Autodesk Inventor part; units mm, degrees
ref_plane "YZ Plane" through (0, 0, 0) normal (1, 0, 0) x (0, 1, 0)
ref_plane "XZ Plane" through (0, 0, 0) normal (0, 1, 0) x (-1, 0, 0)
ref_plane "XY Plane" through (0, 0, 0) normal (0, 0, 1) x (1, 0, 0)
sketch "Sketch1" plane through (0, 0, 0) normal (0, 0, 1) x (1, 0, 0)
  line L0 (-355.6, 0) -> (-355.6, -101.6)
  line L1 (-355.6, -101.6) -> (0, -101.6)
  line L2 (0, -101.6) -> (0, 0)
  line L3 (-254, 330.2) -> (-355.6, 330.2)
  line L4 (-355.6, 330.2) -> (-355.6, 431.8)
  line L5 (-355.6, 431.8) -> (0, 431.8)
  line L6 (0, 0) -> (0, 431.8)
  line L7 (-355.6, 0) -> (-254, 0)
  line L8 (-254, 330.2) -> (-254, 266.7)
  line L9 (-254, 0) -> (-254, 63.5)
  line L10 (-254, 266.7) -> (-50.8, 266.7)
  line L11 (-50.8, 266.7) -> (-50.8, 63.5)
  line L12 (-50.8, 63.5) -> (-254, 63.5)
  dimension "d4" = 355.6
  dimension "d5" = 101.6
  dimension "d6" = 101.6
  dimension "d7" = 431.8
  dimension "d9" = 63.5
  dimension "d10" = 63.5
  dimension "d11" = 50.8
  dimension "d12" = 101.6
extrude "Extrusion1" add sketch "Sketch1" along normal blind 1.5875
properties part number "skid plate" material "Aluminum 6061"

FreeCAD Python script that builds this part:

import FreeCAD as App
import Part
import Sketcher
from FreeCAD import Vector
Q = App.Units.Quantity

doc = App.newDocument("Part")
params = doc.addObject("Spreadsheet::Sheet", "Params")
for row, (alias, value) in enumerate([
    ("sketch1_width", "4 in"),
    ("sketch1_width2", "14 in"),
    ("sketch1_height", "2.5 in"),
    ("pad1_length", "0.0625 in"),
], start=1):
    params.set(f"A{row}", alias)
    params.set(f"B{row}", "=" + value)
    params.setAlias(f"B{row}", alias)

body = doc.addObject("PartDesign::Body", "Body")

# Sketch on XY plane
sketch1 = doc.addObject("Sketcher::SketchObject", "Sketch")
body.addObject(sketch1)
sketch1.AttachmentSupport = (doc.XY_Plane, [""])
sketch1.MapMode = "FlatFace"
sketch1.addGeometry(Part.LineSegment(Vector(-254, 0, 0), Vector(-356, 0, 0)), False)
sketch1.addGeometry(Part.LineSegment(Vector(-356, 0, 0), Vector(-356, -102, 0)), False)
sketch1.addGeometry(Part.LineSegment(Vector(-356, -102, 0), Vector(0, -102, 0)), False)
sketch1.addGeometry(Part.LineSegment(Vector(0, -102, 0), Vector(0, 432, 0)), False)
sketch1.addGeometry(Part.LineSegment(Vector(0, 432, 0), Vector(-356, 432, 0)), False)
sketch1.addGeometry(Part.LineSegment(Vector(-356, 432, 0), Vector(-356, 330, 0)), False)
sketch1.addGeometry(Part.LineSegment(Vector(-356, 330, 0), Vector(-254, 330, 0)), False)
sketch1.addGeometry(Part.LineSegment(Vector(-254, 330, 0), Vector(-254, 267, 0)), False)
sketch1.addGeometry(Part.LineSegment(Vector(-254, 267, 0), Vector(-51, 267, 0)), False)
sketch1.addGeometry(Part.LineSegment(Vector(-51, 267, 0), Vector(-51, 64, 0)), False)
sketch1.addGeometry(Part.LineSegment(Vector(-51, 64, 0), Vector(-254, 64, 0)), False)
sketch1.addGeometry(Part.LineSegment(Vector(-254, 64, 0), Vector(-254, 0, 0)), False)
sketch1.addConstraint(Sketcher.Constraint("Coincident", 0, 2, 1, 1))
sketch1.addConstraint(Sketcher.Constraint("Coincident", 1, 2, 2, 1))
sketch1.addConstraint(Sketcher.Constraint("Coincident", 2, 2, 3, 1))
sketch1.addConstraint(Sketcher.Constraint("Coincident", 3, 2, 4, 1))
sketch1.addConstraint(Sketcher.Constraint("Coincident", 4, 2, 5, 1))
sketch1.addConstraint(Sketcher.Constraint("Coincident", 5, 2, 6, 1))
sketch1.addConstraint(Sketcher.Constraint("Coincident", 6, 2, 7, 1))
sketch1.addConstraint(Sketcher.Constraint("Coincident", 7, 2, 8, 1))
sketch1.addConstraint(Sketcher.Constraint("Coincident", 8, 2, 9, 1))
sketch1.addConstraint(Sketcher.Constraint("Coincident", 9, 2, 10, 1))
sketch1.addConstraint(Sketcher.Constraint("Coincident", 10, 2, 11, 1))
sketch1.addConstraint(Sketcher.Constraint("Coincident", 11, 2, 0, 1))
sketch1.addConstraint(Sketcher.Constraint("Horizontal", 0))
sketch1.addConstraint(Sketcher.Constraint("Vertical", 1))
sketch1.addConstraint(Sketcher.Constraint("Horizontal", 2))
sketch1.addConstraint(Sketcher.Constraint("Vertical", 3))
sketch1.addConstraint(Sketcher.Constraint("Horizontal", 4))
sketch1.addConstraint(Sketcher.Constraint("Vertical", 5))
sketch1.addConstraint(Sketcher.Constraint("Horizontal", 6))
sketch1.addConstraint(Sketcher.Constraint("Vertical", 7))
sketch1.addConstraint(Sketcher.Constraint("Horizontal", 8))
sketch1.addConstraint(Sketcher.Constraint("Vertical", 9))
sketch1.addConstraint(Sketcher.Constraint("Horizontal", 10))
sketch1.addConstraint(Sketcher.Constraint("Vertical", 11))
sketch1.addConstraint(Sketcher.Constraint("PointOnObject", 0, 2, -1))
sketch1.addConstraint(Sketcher.Constraint("PointOnObject", 2, 2, -2))
sketch1.addConstraint(Sketcher.Constraint("Vertical", 1, 2, 4, 2))
sketch1.addConstraint(Sketcher.Constraint("Vertical", 7, 2, 10, 2))
sketch1.addConstraint(Sketcher.Constraint("Equal", 6, 1))
sketch1.addConstraint(Sketcher.Constraint("Equal", 1, 5))
sketch1.addConstraint(Sketcher.Constraint("Equal", 10, 9))
sketch1.addConstraint(Sketcher.Constraint("Equal", 7, 11))
sketch1.addConstraint(Sketcher.Constraint("DistanceX", 0, 2, 0, 1, Q("4 in")))
sketch1.addConstraint(Sketcher.Constraint("DistanceX", 2, 1, 2, 2, Q("14 in")))
sketch1.addConstraint(Sketcher.Constraint("DistanceY", 7, 2, 7, 1, Q("2.5 in")))
sketch1.addConstraint(Sketcher.Constraint("DistanceY", -1, 1, 3, 2, Q("17 in")))
sketch1.setExpression("Constraints[32]", "Params.sketch1_width")
sketch1.setExpression("Constraints[33]", "Params.sketch1_width2")
sketch1.setExpression("Constraints[34]", "Params.sketch1_height")
pad1 = doc.addObject("PartDesign::Pad", "Pad")
body.addObject(pad1)
pad1.Profile = sketch1
pad1.setExpression("Length", "Params.pad1_length")

doc.recompute()
